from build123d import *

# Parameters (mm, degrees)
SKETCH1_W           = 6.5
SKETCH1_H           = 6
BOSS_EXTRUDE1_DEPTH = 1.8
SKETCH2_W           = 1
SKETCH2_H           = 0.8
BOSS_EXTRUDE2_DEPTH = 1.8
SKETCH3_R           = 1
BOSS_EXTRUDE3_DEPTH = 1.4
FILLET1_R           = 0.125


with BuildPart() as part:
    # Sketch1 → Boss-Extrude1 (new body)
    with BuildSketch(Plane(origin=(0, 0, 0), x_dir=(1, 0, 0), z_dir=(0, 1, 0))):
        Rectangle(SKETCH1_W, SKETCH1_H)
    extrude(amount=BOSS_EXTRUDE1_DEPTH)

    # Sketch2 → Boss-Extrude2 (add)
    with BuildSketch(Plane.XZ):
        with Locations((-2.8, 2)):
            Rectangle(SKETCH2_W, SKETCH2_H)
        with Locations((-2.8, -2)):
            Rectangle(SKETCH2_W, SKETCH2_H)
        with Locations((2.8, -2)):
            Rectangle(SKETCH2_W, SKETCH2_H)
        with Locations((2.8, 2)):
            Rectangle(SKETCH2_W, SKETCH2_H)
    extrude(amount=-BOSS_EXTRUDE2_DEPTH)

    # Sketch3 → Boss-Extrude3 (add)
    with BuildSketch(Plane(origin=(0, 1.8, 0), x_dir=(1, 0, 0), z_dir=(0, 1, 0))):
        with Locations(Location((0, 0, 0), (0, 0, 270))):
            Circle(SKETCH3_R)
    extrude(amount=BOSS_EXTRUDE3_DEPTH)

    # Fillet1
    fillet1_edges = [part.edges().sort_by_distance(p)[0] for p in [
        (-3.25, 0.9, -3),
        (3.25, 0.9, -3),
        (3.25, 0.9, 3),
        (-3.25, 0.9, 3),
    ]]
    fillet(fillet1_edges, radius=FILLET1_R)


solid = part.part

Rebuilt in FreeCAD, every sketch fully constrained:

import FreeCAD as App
import Part
import Sketcher
from FreeCAD import Vector


def edges_at(feature, points):
    """Names of the edges that pass closest to the given points."""
    edges = feature.Shape.Edges
    near = lambda p: min(range(len(edges)), key=lambda i: edges[i].distToShape(Part.Vertex(*p))[0])
    return sorted({f"Edge{near(p) + 1}" for p in points})

doc = App.newDocument("Part")
body = doc.addObject("PartDesign::Body", "Body")

sketch1 = body.newObject("Sketcher::SketchObject", "Sketch")
sketch1.AttachmentSupport = (doc.getObject("XZ_Plane"), [""])
sketch1.MapMode = "FlatFace"
sketch1.addGeometry([
    Part.LineSegment(Vector(-3, -3, 0), Vector(-3, 3, 0)),
    Part.LineSegment(Vector(-3, 3, 0), Vector(3, 3, 0)),
    Part.LineSegment(Vector(3, 3, 0), Vector(3, -3, 0)),
    Part.LineSegment(Vector(3, -3, 0), Vector(-3, -3, 0)),
], False)
sketch1.addConstraint([
    Sketcher.Constraint("Coincident", 0, 2, 1, 1),
    Sketcher.Constraint("Coincident", 1, 2, 2, 1),
    Sketcher.Constraint("Coincident", 2, 2, 3, 1),
    Sketcher.Constraint("Coincident", 3, 2, 0, 1),
    Sketcher.Constraint("Vertical", 0),
    Sketcher.Constraint("Horizontal", 1),
    Sketcher.Constraint("Vertical", 2),
    Sketcher.Constraint("Horizontal", 3),
    Sketcher.Constraint("Symmetric", 0, 2, 2, 2, -1, 1),
    Sketcher.Constraint("DistanceY", 0, 1, 0, 2, 6.0),
    Sketcher.Constraint("DistanceX", 1, 1, 1, 2, 6.5),
])
pad1 = body.newObject("PartDesign::Pad", "Pad")
pad1.Profile = sketch1
pad1.Length = 1.8
pad1.Reversed = True

sketch2 = body.newObject("Sketcher::SketchObject", "Sketch001")
sketch2.AttachmentSupport = (doc.getObject("XZ_Plane"), [""])
sketch2.MapMode = "FlatFace"
sketch2.addGeometry([
    Part.LineSegment(Vector(-3.3, 2.4, 0), Vector(-3.3, 1.6, 0)),
    Part.LineSegment(Vector(-3.3, 1.6, 0), Vector(-2.3, 1.6, 0)),
    Part.LineSegment(Vector(-2.3, 1.6, 0), Vector(-2.3, 2.4, 0)),
    Part.LineSegment(Vector(-2.3, 2.4, 0), Vector(-3.3, 2.4, 0)),
    Part.LineSegment(Vector(-3.3, -1.6, 0), Vector(-3.3, -2.4, 0)),
    Part.LineSegment(Vector(-3.3, -2.4, 0), Vector(-2.3, -2.4, 0)),
    Part.LineSegment(Vector(-2.3, -2.4, 0), Vector(-2.3, -1.6, 0)),
    Part.LineSegment(Vector(-2.3, -1.6, 0), Vector(-3.3, -1.6, 0)),
    Part.LineSegment(Vector(2.3, -1.6, 0), Vector(2.3, -2.4, 0)),
    Part.LineSegment(Vector(2.3, -2.4, 0), Vector(3.3, -2.4, 0)),
    Part.LineSegment(Vector(3.3, -2.4, 0), Vector(3.3, -1.6, 0)),
    Part.LineSegment(Vector(3.3, -1.6, 0), Vector(2.3, -1.6, 0)),
    Part.LineSegment(Vector(2.3, 2.4, 0), Vector(2.3, 1.6, 0)),
    Part.LineSegment(Vector(2.3, 1.6, 0), Vector(3.3, 1.6, 0)),
    Part.LineSegment(Vector(3.3, 1.6, 0), Vector(3.3, 2.4, 0)),
    Part.LineSegment(Vector(3.3, 2.4, 0), Vector(2.3, 2.4, 0)),
], False)
sketch2.addConstraint([
    Sketcher.Constraint("Coincident", 0, 2, 1, 1),
    Sketcher.Constraint("Coincident", 1, 2, 2, 1),
    Sketcher.Constraint("Coincident", 2, 2, 3, 1),
    Sketcher.Constraint("Coincident", 3, 2, 0, 1),
    Sketcher.Constraint("Coincident", 4, 2, 5, 1),
    Sketcher.Constraint("Coincident", 5, 2, 6, 1),
    Sketcher.Constraint("Coincident", 6, 2, 7, 1),
    Sketcher.Constraint("Coincident", 7, 2, 4, 1),
    Sketcher.Constraint("Coincident", 8, 2, 9, 1),
    Sketcher.Constraint("Coincident", 9, 2, 10, 1),
    Sketcher.Constraint("Coincident", 10, 2, 11, 1),
    Sketcher.Constraint("Coincident", 11, 2, 8, 1),
    Sketcher.Constraint("Coincident", 12, 2, 13, 1),
    Sketcher.Constraint("Coincident", 13, 2, 14, 1),
    Sketcher.Constraint("Coincident", 14, 2, 15, 1),
    Sketcher.Constraint("Coincident", 15, 2, 12, 1),
    Sketcher.Constraint("Vertical", 0),
    Sketcher.Constraint("Horizontal", 1),
    Sketcher.Constraint("Vertical", 2),
    Sketcher.Constraint("Horizontal", 3),
    Sketcher.Constraint("Vertical", 4),
    Sketcher.Constraint("Horizontal", 5),
    Sketcher.Constraint("Vertical", 6),
    Sketcher.Constraint("Horizontal", 7),
    Sketcher.Constraint("Vertical", 8),
    Sketcher.Constraint("Horizontal", 9),
    Sketcher.Constraint("Vertical", 10),
    Sketcher.Constraint("Horizontal", 11),
    Sketcher.Constraint("Vertical", 12),
    Sketcher.Constraint("Horizontal", 13),
    Sketcher.Constraint("Vertical", 14),
    Sketcher.Constraint("Horizontal", 15),
    Sketcher.Constraint("Symmetric", 2, 2, 8, 2, -1, 1),
    Sketcher.Constraint("Symmetric", 0, 2, 10, 2, -1, 1),
    Sketcher.Constraint("Symmetric", 6, 2, 12, 2, -1, 1),
    Sketcher.Constraint("Symmetric", 4, 2, 14, 2, -1, 1),
    Sketcher.Constraint("Symmetric", 5, 2, 8, 2, -2),
    Sketcher.Constraint("Symmetric", 7, 2, 10, 2, -2),
    Sketcher.Constraint("DistanceX", 1, 1, 1, 2, 1.0),
    Sketcher.Constraint("DistanceY", 0, 2, 0, 1, 0.8),
    Sketcher.Constraint("DistanceY", 4, 2, 0, 2, 4.0),
    Sketcher.Constraint("DistanceX", 0, 2, -1, 1, 3.3),
])
pad2 = body.newObject("PartDesign::Pad", "Pad001")
pad2.Profile = sketch2
pad2.Length = 1.8
pad2.Reversed = True

sketch3 = body.newObject("Sketcher::SketchObject", "Sketch002")
sketch3.AttachmentSupport = (doc.getObject("XZ_Plane"), [""])
sketch3.MapMode = "FlatFace"
sketch3.AttachmentOffset = App.Placement(Vector(0, 0, -1.8), App.Rotation())
sketch3.addGeometry(Part.Circle(Vector(0, 0, 0), Vector(0, 0, 1), 1), False)
sketch3.addConstraint([
    Sketcher.Constraint("Coincident", 0, 3, -1, 1),
    Sketcher.Constraint("Diameter", 0, 2.0),
])
pad3 = body.newObject("PartDesign::Pad", "Pad002")
pad3.Profile = sketch3
pad3.Length = 1.4
pad3.Reversed = True
doc.recompute()

fillet = body.newObject("PartDesign::Fillet", "Fillet")
fillet.Base = (pad3, edges_at(pad3, [
    (-3.25, 0.9, -3),
    (3.25, 0.9, -3),
    (3.25, 0.9, 3),
    (-3.25, 0.9, 3),
]))
fillet.Radius = 0.125

doc.recompute()
